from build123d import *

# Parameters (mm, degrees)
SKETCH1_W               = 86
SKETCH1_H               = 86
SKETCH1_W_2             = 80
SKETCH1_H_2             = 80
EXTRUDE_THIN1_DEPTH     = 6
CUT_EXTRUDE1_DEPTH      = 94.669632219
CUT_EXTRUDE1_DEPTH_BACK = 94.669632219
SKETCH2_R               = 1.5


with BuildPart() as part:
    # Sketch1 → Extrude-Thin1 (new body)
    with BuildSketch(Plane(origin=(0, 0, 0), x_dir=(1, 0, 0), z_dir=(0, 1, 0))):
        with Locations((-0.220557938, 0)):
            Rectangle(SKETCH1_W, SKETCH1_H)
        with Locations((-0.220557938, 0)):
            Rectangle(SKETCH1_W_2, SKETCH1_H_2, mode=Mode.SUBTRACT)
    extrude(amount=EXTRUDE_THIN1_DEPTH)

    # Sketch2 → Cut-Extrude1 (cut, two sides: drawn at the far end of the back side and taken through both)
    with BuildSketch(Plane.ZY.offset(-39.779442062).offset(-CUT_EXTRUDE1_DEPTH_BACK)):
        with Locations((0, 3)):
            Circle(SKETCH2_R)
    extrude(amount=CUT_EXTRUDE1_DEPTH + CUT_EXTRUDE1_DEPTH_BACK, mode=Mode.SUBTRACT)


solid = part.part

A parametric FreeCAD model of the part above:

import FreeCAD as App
import Part
import Sketcher
from FreeCAD import Vector
Q = App.Units.Quantity


def add_polygon(sketch, points):
    """Adds a closed chain of lines whose ends are joined by coincident constraints."""
    first, n = sketch.GeometryCount, len(points)
    for a, b in zip(points, points[1:] + points[:1]):
        sketch.addGeometry(Part.LineSegment(App.Vector(*a, 0), App.Vector(*b, 0)), False)
    for i in range(n):
        sketch.addConstraint(Sketcher.Constraint("Coincident", first + i, 2, first + (i + 1) % n, 1))

doc = App.newDocument("Part")
body = doc.addObject("PartDesign::Body", "Body")

sketch1 = doc.addObject("Sketcher::SketchObject", "Sketch")
body.addObject(sketch1)
sketch1.AttachmentSupport = (doc.XZ_Plane, [""])
sketch1.MapMode = "FlatFace"
add_polygon(sketch1, [(-43, -43), (-43, 43), (43, 43), (43, -43)])
add_polygon(sketch1, [(40, 40), (-40, 40), (-40, -40), (40, -40)])
sketch1.addConstraint([
    Sketcher.Constraint("Vertical", 0),
    Sketcher.Constraint("Horizontal", 1),
    Sketcher.Constraint("Vertical", 2),
    Sketcher.Constraint("Horizontal", 3),
    Sketcher.Constraint("Horizontal", 4),
    Sketcher.Constraint("Vertical", 5),
    Sketcher.Constraint("Horizontal", 6),
    Sketcher.Constraint("Vertical", 7),
    Sketcher.Constraint("Equal", 3, 0),
    Sketcher.Constraint("Equal", 6, 5),
    Sketcher.Constraint("DistanceX", 1, 1, 1, 2, Q("86 mm")),
    Sketcher.Constraint("DistanceX", 4, 2, 4, 1, Q("80 mm")),
    Sketcher.Constraint("DistanceY", -1, 1, 0, 2, Q("43 mm")),
    Sketcher.Constraint("DistanceY", -1, 1, 4, 2, Q("40 mm")),
    Sketcher.Constraint("DistanceX", 0, 2, 4, 2, Q("3 mm")),
    Sketcher.Constraint("DistanceX", 0, 2, -1, 1, Q("43.220558 mm")),
])
pad1 = doc.addObject("PartDesign::Pad", "Pad")
body.addObject(pad1)
pad1.Profile = sketch1
pad1.Length = 6
pad1.Reversed = True

sketch2 = doc.addObject("Sketcher::SketchObject", "Sketch001")
body.addObject(sketch2)
sketch2.AttachmentSupport = (doc.YZ_Plane, [""])
sketch2.MapMode = "FlatFace"
sketch2.AttachmentOffset = App.Placement(Vector(0, 0, 39.779442), App.Rotation())
sketch2.addGeometry(Part.Circle(Vector(3, 0, 0), Vector(0, 0, 1), 1.5), False)
sketch2.addConstraint([
    Sketcher.Constraint("PointOnObject", 0, 3, -1),
    Sketcher.Constraint("Diameter", 0, Q("3 mm")),
    Sketcher.Constraint("DistanceX", -1, 1, 0, 3, Q("3 mm")),
])
pocket1 = doc.addObject("PartDesign::Pocket", "Pocket")
body.addObject(pocket1)
pocket1.Profile = sketch2
pocket1.Type = "ThroughAll"
pocket1.Midplane = True

doc.recompute()
